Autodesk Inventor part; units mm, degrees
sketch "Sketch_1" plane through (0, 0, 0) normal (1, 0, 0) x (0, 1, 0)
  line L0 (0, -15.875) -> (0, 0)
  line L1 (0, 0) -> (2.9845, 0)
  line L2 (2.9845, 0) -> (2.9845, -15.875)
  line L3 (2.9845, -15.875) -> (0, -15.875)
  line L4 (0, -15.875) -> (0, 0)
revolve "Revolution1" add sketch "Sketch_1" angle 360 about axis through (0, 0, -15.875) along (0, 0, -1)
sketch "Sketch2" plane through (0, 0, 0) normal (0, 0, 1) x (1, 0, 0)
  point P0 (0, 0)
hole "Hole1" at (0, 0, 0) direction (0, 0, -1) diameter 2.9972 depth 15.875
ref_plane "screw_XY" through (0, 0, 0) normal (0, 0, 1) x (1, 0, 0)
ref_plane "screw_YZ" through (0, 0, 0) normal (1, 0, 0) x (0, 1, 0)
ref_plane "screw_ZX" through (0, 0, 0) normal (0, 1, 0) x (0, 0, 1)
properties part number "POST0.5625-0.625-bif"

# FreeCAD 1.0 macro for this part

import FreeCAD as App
import Part
import Sketcher
Q = App.Units.Quantity


def add_polygon(sketch, points):
    """Adds a closed chain of lines whose ends are joined by coincident constraints."""
    first, n = sketch.GeometryCount, len(points)
    for a, b in zip(points, points[1:] + points[:1]):
        sketch.addGeometry(Part.LineSegment(App.Vector(*a, 0), App.Vector(*b, 0)), False)
    for i in range(n):
        sketch.addConstraint(Sketcher.Constraint("Coincident", first + i, 2, first + (i + 1) % n, 1))

doc = App.newDocument("Part")
body = doc.addObject("PartDesign::Body", "Body")

# Sketch on YZ plane
sketch1 = body.newObject("Sketcher::SketchObject", "Sketch")
sketch1.AttachmentSupport = (doc.getObject("YZ_Plane"), [""])
sketch1.MapMode = "FlatFace"
add_polygon(sketch1, [(0, 0), (0, -15.9), (3, -15.9), (3, 0)])  # lines 0-3
sketch1.addConstraint([
    Sketcher.Constraint("Vertical", 0),
    Sketcher.Constraint("Horizontal", 1),
    Sketcher.Constraint("Vertical", 2),
    Sketcher.Constraint("Horizontal", 3),
    Sketcher.Constraint("Coincident", 3, 2, -1, 1),
    Sketcher.Constraint("DistanceY", 0, 2, 0, 1, Q("0.625 in")),
    Sketcher.Constraint("DistanceX", 1, 1, 1, 2, Q("0.1175 in")),
])
revolution = body.newObject("PartDesign::Revolution", "Revolution")
revolution.Profile = sketch1
revolution.ReferenceAxis = (sketch1, ["V_Axis"])
revolution.Angle = 360

# Sketch on XY plane
sketch2 = body.newObject("Sketcher::SketchObject", "Sketch001")
sketch2.AttachmentSupport = (doc.getObject("XY_Plane"), [""])
sketch2.MapMode = "FlatFace"
sketch2.addGeometry(Part.Circle(App.Vector(0, 0, 0), App.Vector(0, 0, 1), 1.5), False)
sketch2.addConstraint([
    Sketcher.Constraint("Coincident", 0, 3, -1, 1),
    Sketcher.Constraint("Diameter", 0, Q("0.118 in")),
])
doc.recompute()
hole = body.newObject("PartDesign::Hole", "Hole")
hole.Profile = sketch2
hole.ThreadType = "None"
hole.Diameter = Q("0.118 in")
hole.DepthType = "Dimension"
hole.Depth = Q("0.625 in")
hole.DrillPoint = "Flat"

doc.recompute()
